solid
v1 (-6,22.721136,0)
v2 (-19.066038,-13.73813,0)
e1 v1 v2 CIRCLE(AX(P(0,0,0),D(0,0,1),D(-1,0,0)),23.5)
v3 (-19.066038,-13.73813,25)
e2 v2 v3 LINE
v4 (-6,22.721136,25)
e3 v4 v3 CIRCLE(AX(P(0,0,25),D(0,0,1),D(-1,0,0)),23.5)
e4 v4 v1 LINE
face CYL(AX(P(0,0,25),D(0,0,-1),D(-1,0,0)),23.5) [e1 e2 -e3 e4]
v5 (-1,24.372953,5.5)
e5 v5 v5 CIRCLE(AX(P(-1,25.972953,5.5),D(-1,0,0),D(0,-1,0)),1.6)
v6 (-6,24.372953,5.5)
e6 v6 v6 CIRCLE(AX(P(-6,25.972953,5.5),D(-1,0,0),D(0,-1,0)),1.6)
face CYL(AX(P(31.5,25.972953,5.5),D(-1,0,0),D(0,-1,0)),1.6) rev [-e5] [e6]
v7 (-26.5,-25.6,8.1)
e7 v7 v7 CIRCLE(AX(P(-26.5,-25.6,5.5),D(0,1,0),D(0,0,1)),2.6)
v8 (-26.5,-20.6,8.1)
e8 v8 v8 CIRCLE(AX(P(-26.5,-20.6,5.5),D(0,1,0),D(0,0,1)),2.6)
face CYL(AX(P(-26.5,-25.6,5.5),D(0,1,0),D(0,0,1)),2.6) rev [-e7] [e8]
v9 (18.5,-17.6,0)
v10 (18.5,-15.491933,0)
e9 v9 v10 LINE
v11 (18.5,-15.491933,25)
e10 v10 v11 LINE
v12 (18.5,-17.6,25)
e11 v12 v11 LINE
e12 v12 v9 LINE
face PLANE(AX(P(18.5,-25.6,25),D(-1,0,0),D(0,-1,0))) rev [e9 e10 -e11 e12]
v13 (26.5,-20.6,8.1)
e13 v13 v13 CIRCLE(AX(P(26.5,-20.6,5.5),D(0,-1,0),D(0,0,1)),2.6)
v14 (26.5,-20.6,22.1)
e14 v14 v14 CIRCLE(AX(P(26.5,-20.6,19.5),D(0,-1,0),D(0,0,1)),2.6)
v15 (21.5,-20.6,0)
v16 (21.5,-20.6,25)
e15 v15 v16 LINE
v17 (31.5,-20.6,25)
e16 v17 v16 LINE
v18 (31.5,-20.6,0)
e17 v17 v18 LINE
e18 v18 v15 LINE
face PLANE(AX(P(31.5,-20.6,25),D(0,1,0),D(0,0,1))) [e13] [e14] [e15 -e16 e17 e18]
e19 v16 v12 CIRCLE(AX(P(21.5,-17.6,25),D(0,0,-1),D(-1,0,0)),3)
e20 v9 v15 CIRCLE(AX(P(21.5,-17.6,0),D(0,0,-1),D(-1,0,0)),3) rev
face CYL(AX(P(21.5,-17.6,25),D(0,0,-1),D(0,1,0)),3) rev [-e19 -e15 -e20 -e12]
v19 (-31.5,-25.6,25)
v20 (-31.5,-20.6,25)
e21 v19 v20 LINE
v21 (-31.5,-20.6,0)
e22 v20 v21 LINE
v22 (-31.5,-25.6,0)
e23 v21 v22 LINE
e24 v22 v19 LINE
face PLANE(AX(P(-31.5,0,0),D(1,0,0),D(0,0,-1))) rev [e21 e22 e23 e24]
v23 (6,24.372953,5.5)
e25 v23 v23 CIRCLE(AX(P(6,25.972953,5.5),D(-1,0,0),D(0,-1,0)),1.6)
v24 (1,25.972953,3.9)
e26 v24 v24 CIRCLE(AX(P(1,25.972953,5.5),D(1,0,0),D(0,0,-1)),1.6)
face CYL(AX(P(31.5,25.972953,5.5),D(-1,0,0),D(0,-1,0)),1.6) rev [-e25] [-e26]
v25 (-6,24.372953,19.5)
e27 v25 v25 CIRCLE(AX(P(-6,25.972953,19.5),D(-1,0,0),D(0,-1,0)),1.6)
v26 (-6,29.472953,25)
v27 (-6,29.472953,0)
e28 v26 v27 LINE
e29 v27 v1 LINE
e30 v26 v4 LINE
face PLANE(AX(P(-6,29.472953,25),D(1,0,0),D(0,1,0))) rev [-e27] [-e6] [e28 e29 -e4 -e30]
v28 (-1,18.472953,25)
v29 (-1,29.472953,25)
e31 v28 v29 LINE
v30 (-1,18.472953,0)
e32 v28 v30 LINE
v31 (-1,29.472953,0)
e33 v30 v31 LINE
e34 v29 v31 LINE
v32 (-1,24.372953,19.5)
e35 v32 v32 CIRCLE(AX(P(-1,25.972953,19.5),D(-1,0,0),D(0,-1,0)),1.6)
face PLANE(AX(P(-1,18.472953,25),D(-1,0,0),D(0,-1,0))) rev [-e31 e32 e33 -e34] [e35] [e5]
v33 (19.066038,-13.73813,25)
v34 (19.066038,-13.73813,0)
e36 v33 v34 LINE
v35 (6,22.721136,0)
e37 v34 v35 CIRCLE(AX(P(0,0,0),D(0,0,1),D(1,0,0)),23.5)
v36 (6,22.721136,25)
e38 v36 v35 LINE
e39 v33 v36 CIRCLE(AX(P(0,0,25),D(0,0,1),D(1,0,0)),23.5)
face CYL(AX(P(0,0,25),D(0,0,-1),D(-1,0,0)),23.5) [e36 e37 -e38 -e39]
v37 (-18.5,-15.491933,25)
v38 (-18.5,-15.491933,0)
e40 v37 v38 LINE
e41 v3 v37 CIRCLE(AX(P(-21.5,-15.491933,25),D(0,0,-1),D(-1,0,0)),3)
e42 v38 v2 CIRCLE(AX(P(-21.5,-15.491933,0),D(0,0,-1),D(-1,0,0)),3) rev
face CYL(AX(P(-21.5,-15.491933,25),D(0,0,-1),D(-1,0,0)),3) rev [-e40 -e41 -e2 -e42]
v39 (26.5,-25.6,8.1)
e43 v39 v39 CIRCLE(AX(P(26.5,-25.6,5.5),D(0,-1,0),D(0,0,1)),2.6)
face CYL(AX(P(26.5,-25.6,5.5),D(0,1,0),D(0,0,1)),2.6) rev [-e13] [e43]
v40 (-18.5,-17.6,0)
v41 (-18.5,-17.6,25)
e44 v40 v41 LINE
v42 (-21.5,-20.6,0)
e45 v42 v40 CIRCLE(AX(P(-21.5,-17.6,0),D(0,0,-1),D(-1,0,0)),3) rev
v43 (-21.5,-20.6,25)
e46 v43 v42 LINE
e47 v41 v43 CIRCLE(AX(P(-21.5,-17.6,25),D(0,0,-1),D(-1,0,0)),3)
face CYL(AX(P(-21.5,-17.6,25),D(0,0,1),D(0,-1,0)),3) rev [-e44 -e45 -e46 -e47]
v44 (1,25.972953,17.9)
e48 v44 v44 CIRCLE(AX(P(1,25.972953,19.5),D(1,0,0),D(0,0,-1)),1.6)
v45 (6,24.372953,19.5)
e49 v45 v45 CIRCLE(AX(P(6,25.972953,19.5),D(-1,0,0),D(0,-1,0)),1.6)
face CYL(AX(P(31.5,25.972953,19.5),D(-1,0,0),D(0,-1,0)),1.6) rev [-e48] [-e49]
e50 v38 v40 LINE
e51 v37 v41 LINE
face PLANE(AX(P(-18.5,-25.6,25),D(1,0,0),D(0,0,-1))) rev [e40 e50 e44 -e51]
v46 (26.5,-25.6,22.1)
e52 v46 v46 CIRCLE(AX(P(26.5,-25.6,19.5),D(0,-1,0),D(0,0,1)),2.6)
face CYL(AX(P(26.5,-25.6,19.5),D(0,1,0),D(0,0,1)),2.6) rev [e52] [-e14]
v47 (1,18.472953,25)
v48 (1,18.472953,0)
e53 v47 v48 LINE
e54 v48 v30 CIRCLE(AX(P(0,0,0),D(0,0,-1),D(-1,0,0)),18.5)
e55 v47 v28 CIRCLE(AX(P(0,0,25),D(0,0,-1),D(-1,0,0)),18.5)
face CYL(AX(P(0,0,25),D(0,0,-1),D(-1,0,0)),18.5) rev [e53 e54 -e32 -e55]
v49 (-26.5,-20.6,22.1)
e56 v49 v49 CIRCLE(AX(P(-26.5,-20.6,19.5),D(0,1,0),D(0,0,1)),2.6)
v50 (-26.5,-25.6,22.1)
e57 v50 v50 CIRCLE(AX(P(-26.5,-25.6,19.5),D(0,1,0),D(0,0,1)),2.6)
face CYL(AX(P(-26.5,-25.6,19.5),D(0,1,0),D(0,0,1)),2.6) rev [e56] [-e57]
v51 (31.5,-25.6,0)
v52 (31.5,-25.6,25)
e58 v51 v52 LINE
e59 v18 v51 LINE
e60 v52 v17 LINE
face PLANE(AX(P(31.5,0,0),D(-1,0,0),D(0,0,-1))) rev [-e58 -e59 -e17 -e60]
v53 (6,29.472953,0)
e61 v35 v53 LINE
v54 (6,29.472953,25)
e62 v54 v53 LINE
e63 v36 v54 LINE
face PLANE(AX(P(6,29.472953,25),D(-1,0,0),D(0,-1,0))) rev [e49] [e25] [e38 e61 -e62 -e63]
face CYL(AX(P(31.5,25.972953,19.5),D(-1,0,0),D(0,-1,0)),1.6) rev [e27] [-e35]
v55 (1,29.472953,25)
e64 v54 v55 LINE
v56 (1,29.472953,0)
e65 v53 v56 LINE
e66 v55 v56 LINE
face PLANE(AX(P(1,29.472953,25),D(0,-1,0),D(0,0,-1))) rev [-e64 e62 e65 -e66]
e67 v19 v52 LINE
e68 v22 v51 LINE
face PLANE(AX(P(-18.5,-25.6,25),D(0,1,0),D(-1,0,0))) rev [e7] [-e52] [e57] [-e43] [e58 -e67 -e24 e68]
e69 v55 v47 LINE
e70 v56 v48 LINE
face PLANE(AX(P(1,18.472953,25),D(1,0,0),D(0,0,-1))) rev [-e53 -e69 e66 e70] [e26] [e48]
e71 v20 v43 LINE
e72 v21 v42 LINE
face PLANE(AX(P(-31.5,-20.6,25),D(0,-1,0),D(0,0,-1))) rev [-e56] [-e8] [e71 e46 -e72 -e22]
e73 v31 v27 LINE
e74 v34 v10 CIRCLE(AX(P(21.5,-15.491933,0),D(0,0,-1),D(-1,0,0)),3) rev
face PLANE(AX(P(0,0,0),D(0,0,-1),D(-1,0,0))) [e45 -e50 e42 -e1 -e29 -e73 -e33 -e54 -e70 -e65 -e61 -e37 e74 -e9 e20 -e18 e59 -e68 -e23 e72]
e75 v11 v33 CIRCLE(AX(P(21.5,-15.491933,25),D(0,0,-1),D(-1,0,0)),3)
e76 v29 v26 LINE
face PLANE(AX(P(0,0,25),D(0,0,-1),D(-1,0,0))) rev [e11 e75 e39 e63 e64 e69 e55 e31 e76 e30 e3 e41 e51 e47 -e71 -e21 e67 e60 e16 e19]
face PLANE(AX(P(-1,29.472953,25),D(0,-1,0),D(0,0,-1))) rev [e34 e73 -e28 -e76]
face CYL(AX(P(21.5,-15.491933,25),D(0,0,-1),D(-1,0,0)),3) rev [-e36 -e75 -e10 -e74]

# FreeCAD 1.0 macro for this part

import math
import FreeCAD as App
import Part
import Sketcher


def edges_at(feature, points):
    """Names of the edges that pass closest to the given points."""
    edges = feature.Shape.Edges
    near = lambda p: min(range(len(edges)), key=lambda i: edges[i].distToShape(Part.Vertex(*p))[0])
    return sorted({f"Edge{near(p) + 1}" for p in points})


def add_polygon(sketch, points):
    """Adds a closed chain of lines whose ends are joined by coincident constraints."""
    first, n = sketch.GeometryCount, len(points)
    for a, b in zip(points, points[1:] + points[:1]):
        sketch.addGeometry(Part.LineSegment(App.Vector(*a, 0), App.Vector(*b, 0)), False)
    for i in range(n):
        sketch.addConstraint(Sketcher.Constraint("Coincident", first + i, 2, first + (i + 1) % n, 1))

doc = App.newDocument("Part")
params = doc.addObject("Spreadsheet::Sheet", "Params")
for row, (alias, value) in enumerate([
    ("sketch1_radius", "23.5 mm"),
    ("sketch1_radius2", "18.5 mm"),
    ("sketch1_width", "37 mm"),
    ("sketch1_width2", "5 mm"),
    ("sketch1_height", "11 mm"),
    ("pad1_length", "25 mm"),
    ("sketch2_width", "5 mm"),
    ("sketch2_height", "25 mm"),
    ("pad2_length", "13 mm"),
    ("fillet_radius", "3 mm"),
    ("sketch3_diameter", "5.2 mm"),
    ("fillet2_radius", "3 mm"),
    ("sketch4_diameter", "3.2 mm"),
], start=1):
    params.set(f"A{row}", alias)
    params.set(f"B{row}", "=" + value)
    params.setAlias(f"B{row}", alias)

body = doc.addObject("PartDesign::Body", "Body")

sketch1 = body.newObject("Sketcher::SketchObject", "Sketch")
sketch1.AttachmentSupport = (doc.getObject("XY_Plane"), [""])
sketch1.MapMode = "FlatFace"
sketch1.addGeometry([
    Part.LineSegment(App.Vector(-18.5, -25.6, 0), App.Vector(18.5, -25.6, 0)),
    Part.LineSegment(App.Vector(18.5, -25.6, 0), App.Vector(18.5, -14.5, 0)),
    Part.ArcOfCircle(Part.Circle(App.Vector(0, 0, 0), App.Vector(0, 0, 1), 23.5), math.radians(-38), math.radians(75)),
    Part.LineSegment(App.Vector(6, 22.7, 0), App.Vector(6, 29.5, 0)),
    Part.LineSegment(App.Vector(6, 29.5, 0), App.Vector(1, 29.5, 0)),
    Part.LineSegment(App.Vector(1, 29.5, 0), App.Vector(1, 18.5, 0)),
    Part.ArcOfCircle(Part.Circle(App.Vector(0, 0, 0), App.Vector(0, 0, 1), 18.5), math.radians(93), math.radians(447)),
    Part.LineSegment(App.Vector(-1, 18.5, 0), App.Vector(-1, 29.5, 0)),
    Part.LineSegment(App.Vector(-1, 29.5, 0), App.Vector(-6, 29.5, 0)),
    Part.LineSegment(App.Vector(-6, 29.5, 0), App.Vector(-6, 22.7, 0)),
    Part.ArcOfCircle(Part.Circle(App.Vector(0, 0, 0), App.Vector(0, 0, 1), 23.5), math.radians(105), math.radians(218)),
    Part.LineSegment(App.Vector(-18.5, -14.5, 0), App.Vector(-18.5, -25.6, 0)),
], False)
sketch1.addConstraint([
    Sketcher.Constraint("Coincident", 0, 2, 1, 1),
    Sketcher.Constraint("Coincident", 1, 2, 2, 1),
    Sketcher.Constraint("Coincident", 2, 2, 3, 1),
    Sketcher.Constraint("Coincident", 3, 2, 4, 1),
    Sketcher.Constraint("Coincident", 4, 2, 5, 1),
    Sketcher.Constraint("Coincident", 5, 2, 6, 2),
    Sketcher.Constraint("Coincident", 6, 1, 7, 1),
    Sketcher.Constraint("Coincident", 7, 2, 8, 1),
    Sketcher.Constraint("Coincident", 8, 2, 9, 1),
    Sketcher.Constraint("Coincident", 9, 2, 10, 1),
    Sketcher.Constraint("Coincident", 10, 2, 11, 1),
    Sketcher.Constraint("Coincident", 11, 2, 0, 1),
    Sketcher.Constraint("Horizontal", 0),
    Sketcher.Constraint("Vertical", 1),
    Sketcher.Constraint("Vertical", 3),
    Sketcher.Constraint("Horizontal", 4),
    Sketcher.Constraint("Vertical", 5),
    Sketcher.Constraint("Vertical", 7),
    Sketcher.Constraint("Horizontal", 8),
    Sketcher.Constraint("Vertical", 9),
    Sketcher.Constraint("Vertical", 11),
    Sketcher.Constraint("Coincident", 2, 3, -1, 1),
    Sketcher.Constraint("Coincident", 6, 3, -1, 1),
    Sketcher.Constraint("Coincident", 10, 3, -1, 1),
    Sketcher.Constraint("Equal", 2, 10),
    Sketcher.Constraint("Symmetric", 4, 2, 7, 2, -2),
    Sketcher.Constraint("Horizontal", 2, 2, 9, 2),
    Sketcher.Constraint("Horizontal", 1, 2, 10, 2),
    Sketcher.Constraint("Radius", 2, 23.5),
    Sketcher.Constraint("Radius", 6, 18.5),
    Sketcher.Constraint("DistanceX", 0, 1, 0, 2, 37.0),
    Sketcher.Constraint("DistanceX", 4, 2, 4, 1, 5.0),
    Sketcher.Constraint("DistanceY", 5, 2, 5, 1, 11.0),
    Sketcher.Constraint("DistanceX", -1, 1, 2, 2, 6.0),
    Sketcher.Constraint("DistanceY", 0, 2, -1, 1, 25.6),
])
sketch1.setExpression("Constraints[28]", "Params.sketch1_radius")
sketch1.setExpression("Constraints[29]", "Params.sketch1_radius2")
sketch1.setExpression("Constraints[30]", "Params.sketch1_width")
sketch1.setExpression("Constraints[31]", "Params.sketch1_width2")
sketch1.setExpression("Constraints[32]", "Params.sketch1_height")
pad1 = body.newObject("PartDesign::Pad", "Pad")
pad1.Profile = sketch1
pad1.setExpression("Length", "Params.pad1_length")

sketch2 = body.newObject("Sketcher::SketchObject", "Sketch001")
sketch2.AttachmentSupport = (doc.getObject("YZ_Plane"), [""])
sketch2.MapMode = "FlatFace"
sketch2.AttachmentOffset = App.Placement(App.Vector(0, 0, -18.5), App.Rotation())
add_polygon(sketch2, [(-21, 0), (-26, 0), (-26, 25), (-21, 25)])
sketch2.addConstraint([
    Sketcher.Constraint("Horizontal", 0),
    Sketcher.Constraint("Vertical", 1),
    Sketcher.Constraint("Horizontal", 2),
    Sketcher.Constraint("Vertical", 3),
    Sketcher.Constraint("PointOnObject", 0, 2, -1),
    Sketcher.Constraint("DistanceX", 0, 2, 0, 1, 5.0),
    Sketcher.Constraint("DistanceY", 1, 1, 1, 2, 25.0),
    Sketcher.Constraint("DistanceX", 0, 2, -1, 1, 25.6),
])
sketch2.setExpression("Constraints[9]", "Params.sketch2_width")
sketch2.setExpression("Constraints[10]", "Params.sketch2_height")
pad2 = body.newObject("PartDesign::Pad", "Pad001")
pad2.Profile = sketch2
pad2.setExpression("Length", "Params.pad2_length")
pad2.Reversed = True
doc.recompute()

fillet = body.newObject("PartDesign::Fillet", "Fillet")
fillet.Base = (pad2, edges_at(pad2, [(-18.5, -14.491, 12.5), (-18.5, -20.6, 12.5)]))
fillet.setExpression("Radius", "Params.fillet_radius")

sketch3 = body.newObject("Sketcher::SketchObject", "Sketch002")
sketch3.AttachmentSupport = (doc.getObject("XZ_Plane"), [""])
sketch3.MapMode = "FlatFace"
sketch3.AttachmentOffset = App.Placement(App.Vector(0, 0, 20.6), App.Rotation())
sketch3.addGeometry([
    Part.Circle(App.Vector(-26.5, 19.5, 0), App.Vector(0, 0, 1), 2.6),
    Part.Circle(App.Vector(-26.5, 5.5, 0), App.Vector(0, 0, 1), 2.6),
], False)
sketch3.addConstraint([
    Sketcher.Constraint("Equal", 0, 1),
    Sketcher.Constraint("Vertical", 0, 3, 1, 3),
    Sketcher.Constraint("Diameter", 0, 5.2),
    Sketcher.Constraint("DistanceY", 1, 3, 0, 3, 14.0),
    Sketcher.Constraint("DistanceX", 0, 3, -1, 1, 26.5),
    Sketcher.Constraint("DistanceY", -1, 1, 0, 3, 19.5),
])
sketch3.setExpression("Constraints[2]", "Params.sketch3_diameter")
pocket1 = body.newObject("PartDesign::Pocket", "Pocket")
pocket1.Profile = sketch3
pocket1.Type = "ThroughAll"
pocket1.Reversed = True
doc.recompute()

mirrored = body.newObject("PartDesign::Mirrored", "Mirrored")
mirrored.Originals = [pad2, pocket1]
mirrored.MirrorPlane = (doc.getObject("YZ_Plane"), [""])
body.Tip = mirrored
doc.recompute()

fillet2 = body.newObject("PartDesign::Fillet", "Fillet001")
fillet2.Base = (mirrored, edges_at(mirrored, [(18.5, -14.491, 12.5), (18.5, -20.6, 12.5)]))
fillet2.setExpression("Radius", "Params.fillet2_radius")

sketch4 = body.newObject("Sketcher::SketchObject", "Sketch003")
sketch4.AttachmentSupport = (doc.getObject("YZ_Plane"), [""])
sketch4.MapMode = "FlatFace"
sketch4.AttachmentOffset = App.Placement(App.Vector(0, 0, -6), App.Rotation())
sketch4.addGeometry([
    Part.Circle(App.Vector(26, 19.5, 0), App.Vector(0, 0, 1), 1.6),
    Part.Circle(App.Vector(26, 5.5, 0), App.Vector(0, 0, 1), 1.6),
], False)
sketch4.addConstraint([
    Sketcher.Constraint("Equal", 0, 1),
    Sketcher.Constraint("Vertical", 0, 3, 1, 3),
    Sketcher.Constraint("Diameter", 0, 3.2),
    Sketcher.Constraint("DistanceY", 1, 3, 0, 3, 14.0),
    Sketcher.Constraint("DistanceY", -1, 1, 0, 3, 19.5),
    Sketcher.Constraint("DistanceX", -1, 1, 0, 3, 25.972953),
])
sketch4.setExpression("Constraints[2]", "Params.sketch4_diameter")
pocket2 = body.newObject("PartDesign::Pocket", "Pocket001")
pocket2.Profile = sketch4
pocket2.Type = "ThroughAll"
pocket2.Reversed = True

doc.recompute()
